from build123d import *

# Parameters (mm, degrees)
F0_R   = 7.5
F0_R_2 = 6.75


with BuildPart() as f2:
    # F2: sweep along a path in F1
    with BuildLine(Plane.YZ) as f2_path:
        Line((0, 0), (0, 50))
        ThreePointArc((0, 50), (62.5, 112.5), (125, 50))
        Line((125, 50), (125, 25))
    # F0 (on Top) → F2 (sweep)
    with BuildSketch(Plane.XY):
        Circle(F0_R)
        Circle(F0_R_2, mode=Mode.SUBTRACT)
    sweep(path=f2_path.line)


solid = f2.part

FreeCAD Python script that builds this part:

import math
import FreeCAD as App
import Part
import Sketcher
Q = App.Units.Quantity

doc = App.newDocument("Part")
body = doc.addObject("PartDesign::Body", "Body")

sketch1 = doc.addObject("Sketcher::SketchObject", "Sketch")
body.addObject(sketch1)
sketch1.AttachmentSupport = (doc.XY_Plane, [""])
sketch1.MapMode = "FlatFace"
sketch1.addGeometry(Part.Circle(App.Vector(0, 0, 0), App.Vector(0, 0, 1), 8), False)
sketch1.addGeometry(Part.Circle(App.Vector(0, 0, 0), App.Vector(0, 0, 1), 7), False)
sketch1.addConstraint(Sketcher.Constraint("Coincident", 0, 3, -1, 1))
sketch1.addConstraint(Sketcher.Constraint("Coincident", 1, 3, -1, 1))
sketch1.addConstraint(Sketcher.Constraint("Diameter", 0, Q("15 mm")))
sketch1.addConstraint(Sketcher.Constraint("Diameter", 1, Q("13.5 mm")))

sketch2 = doc.addObject("Sketcher::SketchObject", "Sketch001")
body.addObject(sketch2)
sketch2.AttachmentSupport = (doc.YZ_Plane, [""])
sketch2.MapMode = "FlatFace"
sketch2.addGeometry(Part.LineSegment(App.Vector(0, 0, 0), App.Vector(0, 50, 0)), False)
sketch2.addGeometry(Part.ArcOfCircle(Part.Circle(App.Vector(62, 50, 0), App.Vector(0, 0, 1), 62), math.radians(0), math.radians(180)), False)
sketch2.addGeometry(Part.LineSegment(App.Vector(125, 50, 0), App.Vector(125, 25, 0)), False)
sketch2.addConstraint(Sketcher.Constraint("Tangent", 0, 2, 1, 2))
sketch2.addConstraint(Sketcher.Constraint("Tangent", 1, 1, 2, 1))
sketch2.addConstraint(Sketcher.Constraint("Vertical", 0))
sketch2.addConstraint(Sketcher.Constraint("Vertical", 2))
sketch2.addConstraint(Sketcher.Constraint("Coincident", 0, 1, -1, 1))
sketch2.addConstraint(Sketcher.Constraint("Radius", 1, Q("62.5 mm")))
sketch2.addConstraint(Sketcher.Constraint("DistanceY", 0, 1, 0, 2, Q("50 mm")))
sketch2.addConstraint(Sketcher.Constraint("DistanceY", 2, 2, 2, 1, Q("25 mm")))
doc.recompute()

additivepipe = doc.addObject("PartDesign::AdditivePipe", "AdditivePipe")
body.addObject(additivepipe)
additivepipe.Profile = sketch1
additivepipe.Spine = (sketch2, ["Edge1", "Edge2", "Edge3"])

doc.recompute()
